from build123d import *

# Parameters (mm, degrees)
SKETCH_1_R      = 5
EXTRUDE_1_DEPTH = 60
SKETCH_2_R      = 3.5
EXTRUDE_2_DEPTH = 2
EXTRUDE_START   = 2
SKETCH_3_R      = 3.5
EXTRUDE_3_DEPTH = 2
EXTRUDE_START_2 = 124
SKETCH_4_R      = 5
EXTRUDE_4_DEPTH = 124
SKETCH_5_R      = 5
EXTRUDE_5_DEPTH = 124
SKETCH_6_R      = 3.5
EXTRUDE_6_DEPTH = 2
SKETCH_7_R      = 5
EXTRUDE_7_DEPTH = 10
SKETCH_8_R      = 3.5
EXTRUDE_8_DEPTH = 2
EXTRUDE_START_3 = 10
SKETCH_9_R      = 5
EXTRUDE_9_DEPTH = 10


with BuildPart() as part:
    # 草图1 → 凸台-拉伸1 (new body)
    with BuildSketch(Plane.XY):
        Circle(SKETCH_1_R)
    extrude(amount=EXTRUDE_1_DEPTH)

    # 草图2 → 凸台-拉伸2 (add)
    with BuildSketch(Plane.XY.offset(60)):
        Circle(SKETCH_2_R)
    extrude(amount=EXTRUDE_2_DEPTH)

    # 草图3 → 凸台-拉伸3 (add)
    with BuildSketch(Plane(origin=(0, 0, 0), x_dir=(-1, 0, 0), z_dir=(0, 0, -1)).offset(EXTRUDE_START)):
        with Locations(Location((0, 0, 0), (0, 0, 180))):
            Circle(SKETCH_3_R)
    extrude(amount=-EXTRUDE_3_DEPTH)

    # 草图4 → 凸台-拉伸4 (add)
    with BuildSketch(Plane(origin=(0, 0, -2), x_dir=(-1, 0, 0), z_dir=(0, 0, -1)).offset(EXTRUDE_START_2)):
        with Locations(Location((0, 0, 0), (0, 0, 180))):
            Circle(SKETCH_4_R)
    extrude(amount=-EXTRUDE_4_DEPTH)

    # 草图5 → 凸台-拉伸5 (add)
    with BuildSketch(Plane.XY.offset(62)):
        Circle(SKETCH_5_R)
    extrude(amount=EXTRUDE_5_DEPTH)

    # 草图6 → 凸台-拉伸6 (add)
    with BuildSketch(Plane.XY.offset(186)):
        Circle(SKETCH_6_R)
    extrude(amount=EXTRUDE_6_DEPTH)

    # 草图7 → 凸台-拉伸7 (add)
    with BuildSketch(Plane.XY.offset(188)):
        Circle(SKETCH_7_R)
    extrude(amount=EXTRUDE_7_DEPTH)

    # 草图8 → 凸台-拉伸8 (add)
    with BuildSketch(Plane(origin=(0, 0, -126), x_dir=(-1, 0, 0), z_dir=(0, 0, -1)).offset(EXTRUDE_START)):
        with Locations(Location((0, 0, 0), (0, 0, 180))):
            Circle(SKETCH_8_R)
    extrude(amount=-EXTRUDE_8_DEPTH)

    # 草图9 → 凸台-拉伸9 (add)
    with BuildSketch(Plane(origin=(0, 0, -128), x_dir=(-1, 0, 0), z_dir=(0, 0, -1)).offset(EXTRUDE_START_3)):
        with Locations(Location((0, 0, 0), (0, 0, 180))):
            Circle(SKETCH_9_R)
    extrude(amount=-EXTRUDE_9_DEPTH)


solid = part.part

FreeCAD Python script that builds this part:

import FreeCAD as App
import Part
import Sketcher

doc = App.newDocument("Part")
params = doc.addObject("Spreadsheet::Sheet", "Params")
for row, (alias, value) in enumerate([
    ("sketch1_diameter", "10 mm"),
    ("pad1_length", "60 mm"),
    ("sketch2_diameter", "7 mm"),
    ("pad2_length", "2 mm"),
    ("sketch3_diameter", "7 mm"),
    ("pad3_length", "2 mm"),
    ("sketch4_diameter", "10 mm"),
    ("pad4_length", "124 mm"),
    ("sketch5_diameter", "10 mm"),
    ("pad5_length", "124 mm"),
    ("sketch6_diameter", "7 mm"),
    ("pad6_length", "2 mm"),
    ("sketch7_diameter", "10 mm"),
    ("pad7_length", "10 mm"),
    ("sketch8_diameter", "7 mm"),
    ("pad8_length", "2 mm"),
    ("sketch9_diameter", "10 mm"),
    ("pad9_length", "10 mm"),
], start=1):
    params.set(f"A{row}", alias)
    params.set(f"B{row}", "=" + value)
    params.setAlias(f"B{row}", alias)

body = doc.addObject("PartDesign::Body", "Body")

# Sketch on XY plane
sketch1 = body.newObject("Sketcher::SketchObject", "Sketch")
sketch1.AttachmentSupport = (doc.getObject("XY_Plane"), [""])
sketch1.MapMode = "FlatFace"
sketch1.addGeometry(Part.Circle(App.Vector(0, 0, 0), App.Vector(0, 0, 1), 5), False)
sketch1.addConstraint([
    Sketcher.Constraint("Coincident", 0, 3, -1, 1),
    Sketcher.Constraint("Diameter", 0, 10.0),
])
sketch1.setExpression("Constraints[1]", "Params.sketch1_diameter")
pad1 = body.newObject("PartDesign::Pad", "Pad")
pad1.Profile = sketch1
pad1.setExpression("Length", "Params.pad1_length")

# Sketch on XY plane
sketch2 = body.newObject("Sketcher::SketchObject", "Sketch001")
sketch2.AttachmentSupport = (doc.getObject("XY_Plane"), [""])
sketch2.MapMode = "FlatFace"
sketch2.AttachmentOffset = App.Placement(App.Vector(0, 0, 60), App.Rotation())
sketch2.addGeometry(Part.Circle(App.Vector(0, 0, 0), App.Vector(0, 0, 1), 3.5), False)
sketch2.addConstraint([
    Sketcher.Constraint("Coincident", 0, 3, -1, 1),
    Sketcher.Constraint("Diameter", 0, 7.0),
])
sketch2.setExpression("Constraints[1]", "Params.sketch2_diameter")
pad2 = body.newObject("PartDesign::Pad", "Pad001")
pad2.Profile = sketch2
pad2.setExpression("Length", "Params.pad2_length")

# Sketch on XY plane
sketch3 = body.newObject("Sketcher::SketchObject", "Sketch002")
sketch3.AttachmentSupport = (doc.getObject("XY_Plane"), [""])
sketch3.MapMode = "FlatFace"
sketch3.AttachmentOffset = App.Placement(App.Vector(0, 0, -2), App.Rotation())
sketch3.addGeometry(Part.Circle(App.Vector(0, 0, 0), App.Vector(0, 0, 1), 3.5), False)
sketch3.addConstraint([
    Sketcher.Constraint("Coincident", 0, 3, -1, 1),
    Sketcher.Constraint("Diameter", 0, 7.0),
])
sketch3.setExpression("Constraints[1]", "Params.sketch3_diameter")
pad3 = body.newObject("PartDesign::Pad", "Pad002")
pad3.Profile = sketch3
pad3.setExpression("Length", "Params.pad3_length")

# Sketch on XY plane
sketch4 = body.newObject("Sketcher::SketchObject", "Sketch003")
sketch4.AttachmentSupport = (doc.getObject("XY_Plane"), [""])
sketch4.MapMode = "FlatFace"
sketch4.AttachmentOffset = App.Placement(App.Vector(0, 0, -126), App.Rotation())
sketch4.addGeometry(Part.Circle(App.Vector(0, 0, 0), App.Vector(0, 0, 1), 5), False)
sketch4.addConstraint([
    Sketcher.Constraint("Coincident", 0, 3, -1, 1),
    Sketcher.Constraint("Diameter", 0, 10.0),
])
sketch4.setExpression("Constraints[1]", "Params.sketch4_diameter")
pad4 = body.newObject("PartDesign::Pad", "Pad003")
pad4.Profile = sketch4
pad4.setExpression("Length", "Params.pad4_length")

# Sketch on XY plane
sketch5 = body.newObject("Sketcher::SketchObject", "Sketch004")
sketch5.AttachmentSupport = (doc.getObject("XY_Plane"), [""])
sketch5.MapMode = "FlatFace"
sketch5.AttachmentOffset = App.Placement(App.Vector(0, 0, 62), App.Rotation())
sketch5.addGeometry(Part.Circle(App.Vector(0, 0, 0), App.Vector(0, 0, 1), 5), False)
sketch5.addConstraint([
    Sketcher.Constraint("Coincident", 0, 3, -1, 1),
    Sketcher.Constraint("Diameter", 0, 10.0),
])
sketch5.setExpression("Constraints[1]", "Params.sketch5_diameter")
pad5 = body.newObject("PartDesign::Pad", "Pad004")
pad5.Profile = sketch5
pad5.setExpression("Length", "Params.pad5_length")

# Sketch on XY plane
sketch6 = body.newObject("Sketcher::SketchObject", "Sketch005")
sketch6.AttachmentSupport = (doc.getObject("XY_Plane"), [""])
sketch6.MapMode = "FlatFace"
sketch6.AttachmentOffset = App.Placement(App.Vector(0, 0, 186), App.Rotation())
sketch6.addGeometry(Part.Circle(App.Vector(0, 0, 0), App.Vector(0, 0, 1), 3.5), False)
sketch6.addConstraint([
    Sketcher.Constraint("Coincident", 0, 3, -1, 1),
    Sketcher.Constraint("Diameter", 0, 7.0),
])
sketch6.setExpression("Constraints[1]", "Params.sketch6_diameter")
pad6 = body.newObject("PartDesign::Pad", "Pad005")
pad6.Profile = sketch6
pad6.setExpression("Length", "Params.pad6_length")

# Sketch on XY plane
sketch7 = body.newObject("Sketcher::SketchObject", "Sketch006")
sketch7.AttachmentSupport = (doc.getObject("XY_Plane"), [""])
sketch7.MapMode = "FlatFace"
sketch7.AttachmentOffset = App.Placement(App.Vector(0, 0, 188), App.Rotation())
sketch7.addGeometry(Part.Circle(App.Vector(0, 0, 0), App.Vector(0, 0, 1), 5), False)
sketch7.addConstraint([
    Sketcher.Constraint("Coincident", 0, 3, -1, 1),
    Sketcher.Constraint("Diameter", 0, 10.0),
])
sketch7.setExpression("Constraints[1]", "Params.sketch7_diameter")
pad7 = body.newObject("PartDesign::Pad", "Pad006")
pad7.Profile = sketch7
pad7.setExpression("Length", "Params.pad7_length")

# Sketch on XY plane
sketch8 = body.newObject("Sketcher::SketchObject", "Sketch007")
sketch8.AttachmentSupport = (doc.getObject("XY_Plane"), [""])
sketch8.MapMode = "FlatFace"
sketch8.AttachmentOffset = App.Placement(App.Vector(0, 0, -128), App.Rotation())
sketch8.addGeometry(Part.Circle(App.Vector(0, 0, 0), App.Vector(0, 0, 1), 3.5), False)
sketch8.addConstraint([
    Sketcher.Constraint("Coincident", 0, 3, -1, 1),
    Sketcher.Constraint("Diameter", 0, 7.0),
])
sketch8.setExpression("Constraints[1]", "Params.sketch8_diameter")
pad8 = body.newObject("PartDesign::Pad", "Pad007")
pad8.Profile = sketch8
pad8.setExpression("Length", "Params.pad8_length")

# Sketch on XY plane
sketch9 = body.newObject("Sketcher::SketchObject", "Sketch008")
sketch9.AttachmentSupport = (doc.getObject("XY_Plane"), [""])
sketch9.MapMode = "FlatFace"
sketch9.AttachmentOffset = App.Placement(App.Vector(0, 0, -138), App.Rotation())
sketch9.addGeometry(Part.Circle(App.Vector(0, 0, 0), App.Vector(0, 0, 1), 5), False)
sketch9.addConstraint([
    Sketcher.Constraint("Coincident", 0, 3, -1, 1),
    Sketcher.Constraint("Diameter", 0, 10.0),
])
sketch9.setExpression("Constraints[1]", "Params.sketch9_diameter")
pad9 = body.newObject("PartDesign::Pad", "Pad008")
pad9.Profile = sketch9
pad9.setExpression("Length", "Params.pad9_length")

doc.recompute()
